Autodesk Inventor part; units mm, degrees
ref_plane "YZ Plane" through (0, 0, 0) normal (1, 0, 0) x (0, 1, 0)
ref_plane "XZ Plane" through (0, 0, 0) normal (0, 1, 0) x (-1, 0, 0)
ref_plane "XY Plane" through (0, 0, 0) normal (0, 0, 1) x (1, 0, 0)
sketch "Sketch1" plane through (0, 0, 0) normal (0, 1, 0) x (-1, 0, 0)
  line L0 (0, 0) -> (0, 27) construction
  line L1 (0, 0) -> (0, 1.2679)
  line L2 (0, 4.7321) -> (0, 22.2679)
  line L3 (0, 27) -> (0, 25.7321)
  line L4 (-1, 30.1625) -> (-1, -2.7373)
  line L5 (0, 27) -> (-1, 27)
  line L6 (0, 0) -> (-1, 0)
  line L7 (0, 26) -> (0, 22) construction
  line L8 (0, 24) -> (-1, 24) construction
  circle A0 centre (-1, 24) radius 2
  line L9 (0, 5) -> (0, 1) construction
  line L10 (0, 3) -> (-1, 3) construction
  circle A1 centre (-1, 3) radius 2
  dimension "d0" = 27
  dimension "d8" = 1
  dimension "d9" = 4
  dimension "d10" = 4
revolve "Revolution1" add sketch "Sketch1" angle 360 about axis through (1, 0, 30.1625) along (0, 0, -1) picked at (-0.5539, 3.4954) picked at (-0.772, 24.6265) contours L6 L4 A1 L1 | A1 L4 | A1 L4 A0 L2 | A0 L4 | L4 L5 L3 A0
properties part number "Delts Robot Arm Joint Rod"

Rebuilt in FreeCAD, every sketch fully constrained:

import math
import FreeCAD as App
import Part
import Sketcher
from FreeCAD import Vector
Q = App.Units.Quantity

doc = App.newDocument("Part")
body = doc.addObject("PartDesign::Body", "Body")

sketch1 = body.newObject("Sketcher::SketchObject", "Sketch")
sketch1.AttachmentSupport = (doc.getObject("XZ_Plane"), [""])
sketch1.MapMode = "FlatFace"
sketch1.addGeometry([
    Part.LineSegment(Vector(1, 0, 0), Vector(0, 0, 0)),
    Part.LineSegment(Vector(0, 0, 0), Vector(0, 1.3, 0)),
    Part.ArcOfCircle(Part.Circle(Vector(1, 3, 0), Vector(0, 0, 1), 2), math.radians(120), math.radians(240)),
    Part.LineSegment(Vector(0, 4.7, 0), Vector(0, 22.3, 0)),
    Part.ArcOfCircle(Part.Circle(Vector(1, 24, 0), Vector(0, 0, 1), 2), math.radians(120), math.radians(240)),
    Part.LineSegment(Vector(0, 25.7, 0), Vector(0, 27, 0)),
    Part.LineSegment(Vector(0, 27, 0), Vector(1, 27, 0)),
    Part.LineSegment(Vector(1, 27, 0), Vector(1, 0, 0)),
], False)
sketch1.addGeometry(Part.LineSegment(Vector(1, 27, 0), Vector(1, 0, 0)), True)
sketch1.addConstraint([
    Sketcher.Constraint("Coincident", 0, 2, 1, 1),
    Sketcher.Constraint("Coincident", 1, 2, 2, 2),
    Sketcher.Constraint("Coincident", 2, 1, 3, 1),
    Sketcher.Constraint("Coincident", 3, 2, 4, 2),
    Sketcher.Constraint("Coincident", 4, 1, 5, 1),
    Sketcher.Constraint("Coincident", 5, 2, 6, 1),
    Sketcher.Constraint("Coincident", 6, 2, 7, 1),
    Sketcher.Constraint("Coincident", 7, 2, 0, 1),
    Sketcher.Constraint("Horizontal", 0),
    Sketcher.Constraint("Vertical", 1),
    Sketcher.Constraint("Vertical", 3),
    Sketcher.Constraint("Vertical", 5),
    Sketcher.Constraint("Horizontal", 6),
    Sketcher.Constraint("Vertical", 7),
    Sketcher.Constraint("Vertical", 8),
    Sketcher.Constraint("Coincident", 0, 2, -1, 1),
    Sketcher.Constraint("Coincident", 8, 1, 6, 2),
    Sketcher.Constraint("Equal", 2, 4),
    Sketcher.Constraint("PointOnObject", 2, 1, -2),
    Sketcher.Constraint("PointOnObject", 4, 1, -2),
    Sketcher.Constraint("PointOnObject", 8, 2, -1),
    Sketcher.Constraint("Vertical", 2, 3, 4, 3),
    Sketcher.Constraint("Vertical", 4, 3, 6, 2),
    Sketcher.Constraint("Equal", 1, 5),
    Sketcher.Constraint("Radius", 2, Q("2 mm")),
    Sketcher.Constraint("DistanceX", 0, 2, 0, 1, Q("1 mm")),
    Sketcher.Constraint("DistanceY", 7, 2, 7, 1, Q("27 mm")),
    Sketcher.Constraint("DistanceY", -1, 1, 2, 3, Q("3 mm")),
])
revolution = body.newObject("PartDesign::Revolution", "Revolution")
revolution.Profile = sketch1
revolution.ReferenceAxis = (sketch1, ["Axis0"])
revolution.Angle = 360

doc.recompute()
